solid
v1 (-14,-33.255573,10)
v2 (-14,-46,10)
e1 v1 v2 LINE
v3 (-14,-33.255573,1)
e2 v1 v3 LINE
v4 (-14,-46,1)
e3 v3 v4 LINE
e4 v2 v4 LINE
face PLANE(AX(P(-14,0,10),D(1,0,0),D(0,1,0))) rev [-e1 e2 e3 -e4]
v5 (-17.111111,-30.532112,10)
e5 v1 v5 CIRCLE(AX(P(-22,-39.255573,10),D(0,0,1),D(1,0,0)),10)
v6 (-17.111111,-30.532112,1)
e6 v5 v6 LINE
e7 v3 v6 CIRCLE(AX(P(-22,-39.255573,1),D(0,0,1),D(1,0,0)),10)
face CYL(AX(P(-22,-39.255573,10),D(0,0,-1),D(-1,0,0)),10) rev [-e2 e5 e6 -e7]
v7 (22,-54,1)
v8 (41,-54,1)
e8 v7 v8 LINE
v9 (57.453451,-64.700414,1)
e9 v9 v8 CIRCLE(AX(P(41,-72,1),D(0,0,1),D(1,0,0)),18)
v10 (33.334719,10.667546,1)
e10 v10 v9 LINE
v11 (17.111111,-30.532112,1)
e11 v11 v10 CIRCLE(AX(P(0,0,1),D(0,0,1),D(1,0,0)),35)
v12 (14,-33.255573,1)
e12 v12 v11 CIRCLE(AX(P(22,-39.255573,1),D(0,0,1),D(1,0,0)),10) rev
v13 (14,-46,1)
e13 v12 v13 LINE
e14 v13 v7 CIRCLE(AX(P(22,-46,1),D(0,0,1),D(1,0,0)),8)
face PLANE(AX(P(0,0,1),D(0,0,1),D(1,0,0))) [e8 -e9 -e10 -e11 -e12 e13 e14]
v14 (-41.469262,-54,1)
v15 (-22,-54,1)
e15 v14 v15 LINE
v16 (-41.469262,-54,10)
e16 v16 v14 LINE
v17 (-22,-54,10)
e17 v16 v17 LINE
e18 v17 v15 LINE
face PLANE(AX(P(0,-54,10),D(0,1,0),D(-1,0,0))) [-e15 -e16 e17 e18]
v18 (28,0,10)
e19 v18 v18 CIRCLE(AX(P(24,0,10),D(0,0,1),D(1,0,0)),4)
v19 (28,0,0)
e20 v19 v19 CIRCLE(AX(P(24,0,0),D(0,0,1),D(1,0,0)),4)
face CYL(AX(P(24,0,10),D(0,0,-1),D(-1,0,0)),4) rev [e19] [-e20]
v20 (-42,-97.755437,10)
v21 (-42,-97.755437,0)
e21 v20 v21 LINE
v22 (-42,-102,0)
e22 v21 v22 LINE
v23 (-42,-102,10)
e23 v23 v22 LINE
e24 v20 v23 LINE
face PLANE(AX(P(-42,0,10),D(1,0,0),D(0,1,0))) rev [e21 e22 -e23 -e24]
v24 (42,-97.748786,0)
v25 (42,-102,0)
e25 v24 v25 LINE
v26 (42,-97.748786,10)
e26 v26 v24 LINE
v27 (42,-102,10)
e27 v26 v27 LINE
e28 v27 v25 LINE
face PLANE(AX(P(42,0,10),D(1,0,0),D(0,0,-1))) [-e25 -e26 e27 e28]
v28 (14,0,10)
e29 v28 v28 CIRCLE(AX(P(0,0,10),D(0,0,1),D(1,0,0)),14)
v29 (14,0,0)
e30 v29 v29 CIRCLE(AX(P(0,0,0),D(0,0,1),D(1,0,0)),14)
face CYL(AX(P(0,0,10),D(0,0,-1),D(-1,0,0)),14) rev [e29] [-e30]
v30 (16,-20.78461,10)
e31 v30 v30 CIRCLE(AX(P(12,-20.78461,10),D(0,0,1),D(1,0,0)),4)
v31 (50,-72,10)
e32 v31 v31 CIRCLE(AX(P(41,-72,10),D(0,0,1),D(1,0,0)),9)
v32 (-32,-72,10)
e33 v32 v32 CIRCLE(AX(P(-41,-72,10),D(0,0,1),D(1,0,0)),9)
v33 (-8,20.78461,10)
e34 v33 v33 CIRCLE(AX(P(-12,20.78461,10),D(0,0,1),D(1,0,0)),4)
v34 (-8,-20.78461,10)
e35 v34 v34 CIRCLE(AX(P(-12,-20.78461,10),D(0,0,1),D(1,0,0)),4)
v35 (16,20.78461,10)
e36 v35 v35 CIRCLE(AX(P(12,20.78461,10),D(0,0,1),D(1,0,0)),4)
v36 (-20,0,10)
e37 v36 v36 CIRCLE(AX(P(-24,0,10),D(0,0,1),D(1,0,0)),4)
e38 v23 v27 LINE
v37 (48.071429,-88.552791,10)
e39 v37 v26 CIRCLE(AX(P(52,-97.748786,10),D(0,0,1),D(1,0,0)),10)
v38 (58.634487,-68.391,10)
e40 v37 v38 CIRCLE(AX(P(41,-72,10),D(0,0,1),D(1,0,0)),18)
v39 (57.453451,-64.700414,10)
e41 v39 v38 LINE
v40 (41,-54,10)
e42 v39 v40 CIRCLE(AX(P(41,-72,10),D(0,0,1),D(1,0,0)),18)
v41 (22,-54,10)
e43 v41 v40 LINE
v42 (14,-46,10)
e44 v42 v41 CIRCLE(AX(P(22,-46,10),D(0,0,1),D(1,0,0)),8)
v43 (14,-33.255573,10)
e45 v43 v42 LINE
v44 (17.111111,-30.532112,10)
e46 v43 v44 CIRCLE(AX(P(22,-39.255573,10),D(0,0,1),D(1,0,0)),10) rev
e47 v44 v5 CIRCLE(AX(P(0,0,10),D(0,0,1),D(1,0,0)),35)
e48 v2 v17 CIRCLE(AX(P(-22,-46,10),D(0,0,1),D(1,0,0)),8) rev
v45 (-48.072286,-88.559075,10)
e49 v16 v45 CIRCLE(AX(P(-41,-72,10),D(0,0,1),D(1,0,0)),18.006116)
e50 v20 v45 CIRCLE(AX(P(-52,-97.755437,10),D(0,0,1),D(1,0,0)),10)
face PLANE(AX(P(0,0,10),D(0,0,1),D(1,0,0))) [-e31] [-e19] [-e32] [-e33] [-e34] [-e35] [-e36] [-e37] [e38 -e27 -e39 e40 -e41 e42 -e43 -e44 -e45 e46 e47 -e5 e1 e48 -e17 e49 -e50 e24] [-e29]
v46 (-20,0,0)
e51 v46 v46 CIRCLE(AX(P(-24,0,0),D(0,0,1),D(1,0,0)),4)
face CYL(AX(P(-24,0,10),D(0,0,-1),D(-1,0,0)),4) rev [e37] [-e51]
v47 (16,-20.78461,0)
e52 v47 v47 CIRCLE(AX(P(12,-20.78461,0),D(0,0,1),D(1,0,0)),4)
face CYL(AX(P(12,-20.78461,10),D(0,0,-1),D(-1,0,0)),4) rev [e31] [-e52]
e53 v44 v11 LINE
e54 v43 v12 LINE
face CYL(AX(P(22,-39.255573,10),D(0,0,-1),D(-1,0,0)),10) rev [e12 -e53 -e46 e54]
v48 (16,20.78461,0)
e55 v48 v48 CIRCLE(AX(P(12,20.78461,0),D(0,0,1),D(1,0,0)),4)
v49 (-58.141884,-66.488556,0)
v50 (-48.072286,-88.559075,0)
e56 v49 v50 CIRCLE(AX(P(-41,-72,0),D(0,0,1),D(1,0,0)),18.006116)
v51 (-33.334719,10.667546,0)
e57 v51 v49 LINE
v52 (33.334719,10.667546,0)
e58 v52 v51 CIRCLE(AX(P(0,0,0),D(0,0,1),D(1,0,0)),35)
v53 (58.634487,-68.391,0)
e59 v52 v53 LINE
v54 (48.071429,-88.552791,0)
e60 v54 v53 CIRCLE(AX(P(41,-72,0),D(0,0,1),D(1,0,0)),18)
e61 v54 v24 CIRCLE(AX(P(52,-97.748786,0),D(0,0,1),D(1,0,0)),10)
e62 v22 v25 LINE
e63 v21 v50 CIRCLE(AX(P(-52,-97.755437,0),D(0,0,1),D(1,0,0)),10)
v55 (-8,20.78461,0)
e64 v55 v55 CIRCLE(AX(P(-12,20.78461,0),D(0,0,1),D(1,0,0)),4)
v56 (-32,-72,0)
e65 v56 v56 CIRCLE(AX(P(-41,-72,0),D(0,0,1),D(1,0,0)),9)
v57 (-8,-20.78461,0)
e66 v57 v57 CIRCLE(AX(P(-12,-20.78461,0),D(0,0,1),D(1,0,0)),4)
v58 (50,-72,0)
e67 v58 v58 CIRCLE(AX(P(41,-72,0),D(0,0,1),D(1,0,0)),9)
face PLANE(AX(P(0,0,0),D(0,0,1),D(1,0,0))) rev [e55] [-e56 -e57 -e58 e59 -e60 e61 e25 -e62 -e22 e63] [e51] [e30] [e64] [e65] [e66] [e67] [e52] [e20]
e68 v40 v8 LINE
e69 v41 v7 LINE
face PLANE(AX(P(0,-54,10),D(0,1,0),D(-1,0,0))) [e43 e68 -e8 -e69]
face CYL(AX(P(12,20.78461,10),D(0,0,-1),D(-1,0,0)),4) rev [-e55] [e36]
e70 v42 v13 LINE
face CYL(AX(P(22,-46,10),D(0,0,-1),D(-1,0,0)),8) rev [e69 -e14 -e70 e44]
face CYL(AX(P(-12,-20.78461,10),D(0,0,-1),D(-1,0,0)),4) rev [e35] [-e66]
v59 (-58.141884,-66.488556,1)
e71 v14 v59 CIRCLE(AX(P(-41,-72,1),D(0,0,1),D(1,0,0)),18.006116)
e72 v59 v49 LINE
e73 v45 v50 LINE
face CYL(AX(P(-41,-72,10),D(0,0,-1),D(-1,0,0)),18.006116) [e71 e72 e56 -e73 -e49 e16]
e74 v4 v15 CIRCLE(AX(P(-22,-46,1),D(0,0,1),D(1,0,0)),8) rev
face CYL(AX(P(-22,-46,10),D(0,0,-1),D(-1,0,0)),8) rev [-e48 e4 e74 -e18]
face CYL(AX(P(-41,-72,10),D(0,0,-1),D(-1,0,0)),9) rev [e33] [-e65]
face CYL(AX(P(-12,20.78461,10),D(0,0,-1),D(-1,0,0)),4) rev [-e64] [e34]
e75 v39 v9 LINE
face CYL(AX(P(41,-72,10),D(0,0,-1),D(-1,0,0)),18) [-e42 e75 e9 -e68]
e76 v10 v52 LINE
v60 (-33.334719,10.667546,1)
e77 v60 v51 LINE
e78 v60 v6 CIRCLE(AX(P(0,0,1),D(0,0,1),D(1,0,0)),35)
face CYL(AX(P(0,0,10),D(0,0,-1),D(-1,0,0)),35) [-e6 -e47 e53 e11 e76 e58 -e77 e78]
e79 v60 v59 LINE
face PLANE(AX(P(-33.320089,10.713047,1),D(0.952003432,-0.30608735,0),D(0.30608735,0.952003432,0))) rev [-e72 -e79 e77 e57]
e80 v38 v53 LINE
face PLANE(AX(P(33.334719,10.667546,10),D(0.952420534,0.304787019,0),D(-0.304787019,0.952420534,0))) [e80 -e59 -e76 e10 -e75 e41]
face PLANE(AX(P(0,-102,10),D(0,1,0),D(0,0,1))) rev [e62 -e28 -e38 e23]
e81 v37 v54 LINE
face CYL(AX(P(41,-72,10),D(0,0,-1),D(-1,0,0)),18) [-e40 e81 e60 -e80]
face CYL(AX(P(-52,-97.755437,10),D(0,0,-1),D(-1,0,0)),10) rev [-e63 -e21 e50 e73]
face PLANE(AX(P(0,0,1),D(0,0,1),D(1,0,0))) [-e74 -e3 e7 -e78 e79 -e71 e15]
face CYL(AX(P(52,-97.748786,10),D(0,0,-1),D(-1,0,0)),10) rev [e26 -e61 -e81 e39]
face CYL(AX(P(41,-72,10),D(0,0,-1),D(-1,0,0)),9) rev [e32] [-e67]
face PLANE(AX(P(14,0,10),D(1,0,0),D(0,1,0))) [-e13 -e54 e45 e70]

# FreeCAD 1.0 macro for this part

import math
import FreeCAD as App
import Part
import Sketcher
from FreeCAD import Vector

doc = App.newDocument("Part")
body = doc.addObject("PartDesign::Body", "Body")

sketch1 = body.newObject("Sketcher::SketchObject", "Sketch")
sketch1.AttachmentSupport = (doc.getObject("XY_Plane"), [""])
sketch1.MapMode = "FlatFace"
sketch1.addGeometry([
    Part.LineSegment(Vector(-22, -54, 0), Vector(-41.5, -54, 0)),
    Part.ArcOfCircle(Part.Circle(Vector(-41, -72, 0), Vector(0, 0, 1), 18), math.radians(91), math.radians(247)),
    Part.ArcOfCircle(Part.Circle(Vector(-52, -97.8, 0), Vector(0, 0, 1), 10), math.radians(0), math.radians(67)),
    Part.LineSegment(Vector(-42, -97.8, 0), Vector(-42, -102, 0)),
    Part.LineSegment(Vector(-42, -102, 0), Vector(42, -102, 0)),
    Part.LineSegment(Vector(42, -102, 0), Vector(42, -97.7, 0)),
    Part.ArcOfCircle(Part.Circle(Vector(52, -97.7, 0), Vector(0, 0, 1), 10), math.radians(113), math.radians(180)),
    Part.ArcOfCircle(Part.Circle(Vector(41, -72, 0), Vector(0, 0, 1), 18), math.radians(-67), math.radians(12)),
    Part.LineSegment(Vector(58.6, -68.4, 0), Vector(57.5, -64.7, 0)),
    Part.ArcOfCircle(Part.Circle(Vector(41, -72, 0), Vector(0, 0, 1), 18), math.radians(24), math.radians(90)),
    Part.LineSegment(Vector(41, -54, 0), Vector(22, -54, 0)),
    Part.ArcOfCircle(Part.Circle(Vector(22, -46, 0), Vector(0, 0, 1), 8), math.radians(-180), math.radians(-90)),
    Part.LineSegment(Vector(14, -46, 0), Vector(14, -33.3, 0)),
    Part.ArcOfCircle(Part.Circle(Vector(22, -39.3, 0), Vector(0, 0, 1), 10), math.radians(119), math.radians(143)),
    Part.ArcOfCircle(Part.Circle(Vector(0, 0, 0), Vector(0, 0, 1), 35), math.radians(-61), math.radians(241)),
    Part.ArcOfCircle(Part.Circle(Vector(-22, -39.3, 0), Vector(0, 0, 1), 10), math.radians(37), math.radians(61)),
    Part.LineSegment(Vector(-14, -33.3, 0), Vector(-14, -46, 0)),
    Part.ArcOfCircle(Part.Circle(Vector(-22, -46, 0), Vector(0, 0, 1), 8), math.radians(-90), math.radians(0)),
    Part.Circle(Vector(-41, -72, 0), Vector(0, 0, 1), 9),
    Part.Circle(Vector(41, -72, 0), Vector(0, 0, 1), 9),
    Part.Circle(Vector(-12, -20.8, 0), Vector(0, 0, 1), 4),
    Part.Circle(Vector(-24, 0, 0), Vector(0, 0, 1), 4),
    Part.Circle(Vector(-12, 20.8, 0), Vector(0, 0, 1), 4),
    Part.Circle(Vector(12, -20.8, 0), Vector(0, 0, 1), 4),
    Part.Circle(Vector(0, 0, 0), Vector(0, 0, 1), 14),
    Part.Circle(Vector(24, 0, 0), Vector(0, 0, 1), 4),
    Part.Circle(Vector(12, 20.8, 0), Vector(0, 0, 1), 4),
], False)
sketch1.addConstraint([
    Sketcher.Constraint("Coincident", 0, 2, 1, 1),
    Sketcher.Constraint("Tangent", 1, 2, 2, 2),
    Sketcher.Constraint("Tangent", 2, 1, 3, 1),
    Sketcher.Constraint("Coincident", 3, 2, 4, 1),
    Sketcher.Constraint("Coincident", 4, 2, 5, 1),
    Sketcher.Constraint("Tangent", 5, 2, 6, 2),
    Sketcher.Constraint("Tangent", 6, 1, 7, 1),
    Sketcher.Constraint("Coincident", 7, 2, 8, 1),
    Sketcher.Constraint("Coincident", 8, 2, 9, 1),
    Sketcher.Constraint("Tangent", 9, 2, 10, 1),
    Sketcher.Constraint("Tangent", 10, 2, 11, 2),
    Sketcher.Constraint("Tangent", 11, 1, 12, 1),
    Sketcher.Constraint("Coincident", 12, 2, 13, 2),
    Sketcher.Constraint("Tangent", 13, 1, 14, 1),
    Sketcher.Constraint("Tangent", 14, 2, 15, 2),
    Sketcher.Constraint("Coincident", 15, 1, 16, 1),
    Sketcher.Constraint("Tangent", 16, 2, 17, 2),
    Sketcher.Constraint("Tangent", 17, 1, 0, 1),
    Sketcher.Constraint("Horizontal", 0),
    Sketcher.Constraint("Vertical", 3),
    Sketcher.Constraint("Horizontal", 4),
    Sketcher.Constraint("Vertical", 5),
    Sketcher.Constraint("Horizontal", 10),
    Sketcher.Constraint("Vertical", 12),
    Sketcher.Constraint("Vertical", 16),
    Sketcher.Constraint("Coincident", 14, 3, -1, 1),
    Sketcher.Constraint("Coincident", 24, 3, -1, 1),
    Sketcher.Constraint("Coincident", 9, 3, 7, 3),
    Sketcher.Constraint("Coincident", 18, 3, 1, 3),
    Sketcher.Constraint("Coincident", 19, 3, 7, 3),
    Sketcher.Constraint("Equal", 2, 6),
    Sketcher.Constraint("Equal", 7, 9),
    Sketcher.Constraint("Equal", 6, 13),
    Sketcher.Constraint("Equal", 13, 15),
    Sketcher.Constraint("Equal", 11, 17),
    Sketcher.Constraint("Equal", 18, 19),
    Sketcher.Constraint("Equal", 20, 21),
    Sketcher.Constraint("Equal", 21, 22),
    Sketcher.Constraint("Equal", 22, 23),
    Sketcher.Constraint("Equal", 23, 25),
    Sketcher.Constraint("Equal", 25, 26),
    Sketcher.Constraint("Symmetric", 22, 3, 23, 3, -1, 1),
    Sketcher.Constraint("Symmetric", 21, 3, 25, 3, -1, 1),
    Sketcher.Constraint("Symmetric", 20, 3, 26, 3, -1, 1),
    Sketcher.Constraint("Symmetric", 1, 3, 7, 3, -2),
    Sketcher.Constraint("Symmetric", 11, 3, 17, 3, -2),
    Sketcher.Constraint("Symmetric", 20, 3, 23, 3, -2),
    Sketcher.Constraint("PointOnObject", 21, 3, -1),
    Sketcher.Constraint("Horizontal", 13, 3, 15, 3),
    Sketcher.Constraint("Vertical", 11, 3, 13, 3),
    Sketcher.Constraint("Diameter", 18, 18.0),
    Sketcher.Constraint("Diameter", 20, 8.0),
    Sketcher.Constraint("Diameter", 24, 28.0),
    Sketcher.Constraint("Radius", 2, 10.0),
    Sketcher.Constraint("Radius", 7, 18.0),
    Sketcher.Constraint("Radius", 11, 8.0),
    Sketcher.Constraint("Radius", 14, 35.0),
    Sketcher.Constraint("DistanceX", 4, 1, 4, 2, 84.0),
    Sketcher.Constraint("DistanceX", 10, 2, 10, 1, 19.0),
    Sketcher.Constraint("DistanceX", 1, 3, -1, 1, 41.0),
    Sketcher.Constraint("DistanceY", 1, 3, -1, 1, 72.0),
    Sketcher.Constraint("DistanceX", 2, 3, -1, 1, 52.0),
    Sketcher.Constraint("DistanceX", 20, 3, -1, 1, 12.0),
    Sketcher.Constraint("DistanceX", 21, 3, -1, 1, 24.0),
    Sketcher.Constraint("DistanceY", 3, 2, -1, 1, 102.0),
    Sketcher.Constraint("DistanceY", 7, 2, -1, 1, 68.391),
    Sketcher.Constraint("Radius", 1, 18.006116),
    Sketcher.Constraint("DistanceY", 20, 3, -1, 1, 20.78461),
    Sketcher.Constraint("DistanceX", -1, 1, 8, 2, 57.453451),
])
pad1 = body.newObject("PartDesign::Pad", "Pad")
pad1.Profile = sketch1
pad1.Length = 10

sketch2 = body.newObject("Sketcher::SketchObject", "Sketch001")
sketch2.AttachmentSupport = (doc.getObject("XY_Plane"), [""])
sketch2.MapMode = "FlatFace"
sketch2.addGeometry([
    Part.LineSegment(Vector(57.5, -64.7, 0), Vector(33.3, 10.7, 0)),
    Part.ArcOfCircle(Part.Circle(Vector(0, 0, 0), Vector(0, 0, 1), 35), math.radians(0), math.radians(17.75)),
    Part.ArcOfCircle(Part.Circle(Vector(0, 0, 0), Vector(0, 0, 1), 35), math.radians(-61), math.radians(0)),
    Part.ArcOfCircle(Part.Circle(Vector(22, -39.3, 0), Vector(0, 0, 1), 10), math.radians(119), math.radians(143)),
    Part.LineSegment(Vector(14, -33.3, 0), Vector(14, -46, 0)),
    Part.ArcOfCircle(Part.Circle(Vector(22, -46, 0), Vector(0, 0, 1), 8), math.radians(-180), math.radians(-90)),
    Part.LineSegment(Vector(22, -54, 0), Vector(41, -54, 0)),
    Part.ArcOfCircle(Part.Circle(Vector(41, -72, 0), Vector(0, 0, 1), 18), math.radians(24), math.radians(90)),
    Part.ArcOfCircle(Part.Circle(Vector(-41, -72, 0), Vector(0, 0, 1), 18), math.radians(91), math.radians(162)),
    Part.LineSegment(Vector(-41.5, -54, 0), Vector(-22, -54, 0)),
    Part.ArcOfCircle(Part.Circle(Vector(-22, -46, 0), Vector(0, 0, 1), 8), math.radians(-90), math.radians(0)),
    Part.LineSegment(Vector(-14, -46, 0), Vector(-14, -33.3, 0)),
    Part.ArcOfCircle(Part.Circle(Vector(-22, -39.3, 0), Vector(0, 0, 1), 10), math.radians(37), math.radians(61)),
    Part.ArcOfCircle(Part.Circle(Vector(0, 0, 0), Vector(0, 0, 1), 35), math.radians(162), math.radians(241)),
    Part.LineSegment(Vector(-33.3, 10.7, 0), Vector(-58.1, -66.5, 0)),
], False)
sketch2.addConstraint([
    Sketcher.Constraint("Tangent", 0, 2, 1, 2),
    Sketcher.Constraint("Tangent", 1, 1, 2, 2),
    Sketcher.Constraint("Tangent", 2, 1, 3, 1),
    Sketcher.Constraint("Coincident", 3, 2, 4, 1),
    Sketcher.Constraint("Tangent", 4, 2, 5, 1),
    Sketcher.Constraint("Tangent", 5, 2, 6, 1),
    Sketcher.Constraint("Tangent", 6, 2, 7, 2),
    Sketcher.Constraint("Coincident", 7, 1, 0, 1),
    Sketcher.Constraint("Coincident", 8, 1, 9, 1),
    Sketcher.Constraint("Tangent", 9, 2, 10, 1),
    Sketcher.Constraint("Tangent", 10, 2, 11, 1),
    Sketcher.Constraint("Coincident", 11, 2, 12, 1),
    Sketcher.Constraint("Tangent", 12, 2, 13, 2),
    Sketcher.Constraint("Coincident", 13, 1, 14, 1),
    Sketcher.Constraint("Tangent", 14, 2, 8, 2),
    Sketcher.Constraint("Vertical", 4),
    Sketcher.Constraint("Horizontal", 6),
    Sketcher.Constraint("Horizontal", 9),
    Sketcher.Constraint("Vertical", 11),
    Sketcher.Constraint("Coincident", 1, 3, -1, 1),
    Sketcher.Constraint("Coincident", 13, 3, -1, 1),
    Sketcher.Constraint("Equal", 1, 2),
    Sketcher.Constraint("Equal", 5, 10),
    Sketcher.Constraint("Equal", 3, 12),
    Sketcher.Constraint("Equal", 2, 13),
    Sketcher.Constraint("Symmetric", 7, 3, 8, 3, -2),
    Sketcher.Constraint("Symmetric", 5, 3, 10, 3, -2),
    Sketcher.Constraint("PointOnObject", 1, 1, -1),
    Sketcher.Constraint("Horizontal", 3, 3, 12, 3),
    Sketcher.Constraint("Horizontal", 0, 2, 13, 1),
    Sketcher.Constraint("Vertical", 3, 3, 5, 3),
    Sketcher.Constraint("Radius", 1, 35.0),
    Sketcher.Constraint("Radius", 3, 10.0),
    Sketcher.Constraint("Radius", 5, 8.0),
    Sketcher.Constraint("Radius", 7, 18.0),
    Sketcher.Constraint("DistanceX", 6, 1, 6, 2, 19.0),
    Sketcher.Constraint("DistanceX", -1, 1, 3, 3, 22.0),
    Sketcher.Constraint("DistanceY", 5, 3, -1, 1, 46.0),
    Sketcher.Constraint("Radius", 8, 18.006116),
    Sketcher.Constraint("Distance", 0, 79.133069),
])
pad2 = body.newObject("PartDesign::Pad", "Pad001")
pad2.Profile = sketch2
pad2.Length = 1

doc.recompute()
